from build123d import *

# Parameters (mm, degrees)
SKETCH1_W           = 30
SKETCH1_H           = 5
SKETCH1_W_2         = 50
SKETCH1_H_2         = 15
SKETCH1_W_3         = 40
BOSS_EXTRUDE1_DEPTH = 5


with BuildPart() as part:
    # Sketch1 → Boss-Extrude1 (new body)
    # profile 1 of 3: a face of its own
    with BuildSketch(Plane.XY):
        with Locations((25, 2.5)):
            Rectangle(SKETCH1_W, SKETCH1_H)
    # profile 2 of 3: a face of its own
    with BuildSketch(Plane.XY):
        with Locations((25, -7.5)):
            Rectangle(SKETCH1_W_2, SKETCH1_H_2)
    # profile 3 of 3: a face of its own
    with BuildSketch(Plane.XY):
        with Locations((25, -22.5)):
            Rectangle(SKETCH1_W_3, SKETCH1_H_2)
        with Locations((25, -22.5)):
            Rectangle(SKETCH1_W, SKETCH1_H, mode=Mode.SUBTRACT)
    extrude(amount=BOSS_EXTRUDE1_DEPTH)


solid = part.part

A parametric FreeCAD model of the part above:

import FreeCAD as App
import Part
import Sketcher
from FreeCAD import Vector


def add_polygon(sketch, points):
    """Adds a closed chain of lines whose ends are joined by coincident constraints."""
    first, n = sketch.GeometryCount, len(points)
    for a, b in zip(points, points[1:] + points[:1]):
        sketch.addGeometry(Part.LineSegment(App.Vector(*a, 0), App.Vector(*b, 0)), False)
    for i in range(n):
        sketch.addConstraint(Sketcher.Constraint("Coincident", first + i, 2, first + (i + 1) % n, 1))

doc = App.newDocument("Part")
body = doc.addObject("PartDesign::Body", "Body")

sketch1 = body.newObject("Sketcher::SketchObject", "Sketch")
sketch1.AttachmentSupport = (doc.getObject("XY_Plane"), [""])
sketch1.MapMode = "FlatFace"
add_polygon(sketch1, [(10, 5), (10, 0), (0, 0), (0, -15), (5, -15), (5, -30), (45, -30), (45, -15), (50, -15), (50, 0), (40, 0), (40, 5)])
add_polygon(sketch1, [(10, -25), (10, -20), (40, -20), (40, -25)])
sketch1.addConstraint([
    Sketcher.Constraint("Vertical", 0),
    Sketcher.Constraint("Horizontal", 1),
    Sketcher.Constraint("Vertical", 2),
    Sketcher.Constraint("Horizontal", 3),
    Sketcher.Constraint("Vertical", 4),
    Sketcher.Constraint("Horizontal", 5),
    Sketcher.Constraint("Vertical", 6),
    Sketcher.Constraint("Horizontal", 7),
    Sketcher.Constraint("Vertical", 8),
    Sketcher.Constraint("Horizontal", 9),
    Sketcher.Constraint("Vertical", 10),
    Sketcher.Constraint("Horizontal", 11),
    Sketcher.Constraint("Vertical", 12),
    Sketcher.Constraint("Horizontal", 13),
    Sketcher.Constraint("Vertical", 14),
    Sketcher.Constraint("Horizontal", 15),
    Sketcher.Constraint("Coincident", 1, 2, -1, 1),
    Sketcher.Constraint("PointOnObject", 8, 2, -1),
    Sketcher.Constraint("Horizontal", 3, 2, 6, 2),
    Sketcher.Constraint("Vertical", 11, 2, 12, 2),
    Sketcher.Constraint("Vertical", 10, 2, 13, 2),
    Sketcher.Constraint("Equal", 3, 7),
    Sketcher.Constraint("Equal", 1, 9),
    Sketcher.Constraint("Equal", 7, 0),
    Sketcher.Constraint("Equal", 2, 4),
    Sketcher.Constraint("Equal", 10, 12),
    Sketcher.Constraint("DistanceX", 1, 2, 1, 1, 10.0),
    Sketcher.Constraint("DistanceX", 3, 1, 3, 2, 5.0),
    Sketcher.Constraint("DistanceX", 5, 1, 5, 2, 40.0),
    Sketcher.Constraint("DistanceY", 2, 2, 2, 1, 15.0),
    Sketcher.Constraint("DistanceY", 12, 2, -1, 1, 20.0),
])
pad1 = body.newObject("PartDesign::Pad", "Pad")
pad1.Profile = sketch1
pad1.Length = 5

doc.recompute()
